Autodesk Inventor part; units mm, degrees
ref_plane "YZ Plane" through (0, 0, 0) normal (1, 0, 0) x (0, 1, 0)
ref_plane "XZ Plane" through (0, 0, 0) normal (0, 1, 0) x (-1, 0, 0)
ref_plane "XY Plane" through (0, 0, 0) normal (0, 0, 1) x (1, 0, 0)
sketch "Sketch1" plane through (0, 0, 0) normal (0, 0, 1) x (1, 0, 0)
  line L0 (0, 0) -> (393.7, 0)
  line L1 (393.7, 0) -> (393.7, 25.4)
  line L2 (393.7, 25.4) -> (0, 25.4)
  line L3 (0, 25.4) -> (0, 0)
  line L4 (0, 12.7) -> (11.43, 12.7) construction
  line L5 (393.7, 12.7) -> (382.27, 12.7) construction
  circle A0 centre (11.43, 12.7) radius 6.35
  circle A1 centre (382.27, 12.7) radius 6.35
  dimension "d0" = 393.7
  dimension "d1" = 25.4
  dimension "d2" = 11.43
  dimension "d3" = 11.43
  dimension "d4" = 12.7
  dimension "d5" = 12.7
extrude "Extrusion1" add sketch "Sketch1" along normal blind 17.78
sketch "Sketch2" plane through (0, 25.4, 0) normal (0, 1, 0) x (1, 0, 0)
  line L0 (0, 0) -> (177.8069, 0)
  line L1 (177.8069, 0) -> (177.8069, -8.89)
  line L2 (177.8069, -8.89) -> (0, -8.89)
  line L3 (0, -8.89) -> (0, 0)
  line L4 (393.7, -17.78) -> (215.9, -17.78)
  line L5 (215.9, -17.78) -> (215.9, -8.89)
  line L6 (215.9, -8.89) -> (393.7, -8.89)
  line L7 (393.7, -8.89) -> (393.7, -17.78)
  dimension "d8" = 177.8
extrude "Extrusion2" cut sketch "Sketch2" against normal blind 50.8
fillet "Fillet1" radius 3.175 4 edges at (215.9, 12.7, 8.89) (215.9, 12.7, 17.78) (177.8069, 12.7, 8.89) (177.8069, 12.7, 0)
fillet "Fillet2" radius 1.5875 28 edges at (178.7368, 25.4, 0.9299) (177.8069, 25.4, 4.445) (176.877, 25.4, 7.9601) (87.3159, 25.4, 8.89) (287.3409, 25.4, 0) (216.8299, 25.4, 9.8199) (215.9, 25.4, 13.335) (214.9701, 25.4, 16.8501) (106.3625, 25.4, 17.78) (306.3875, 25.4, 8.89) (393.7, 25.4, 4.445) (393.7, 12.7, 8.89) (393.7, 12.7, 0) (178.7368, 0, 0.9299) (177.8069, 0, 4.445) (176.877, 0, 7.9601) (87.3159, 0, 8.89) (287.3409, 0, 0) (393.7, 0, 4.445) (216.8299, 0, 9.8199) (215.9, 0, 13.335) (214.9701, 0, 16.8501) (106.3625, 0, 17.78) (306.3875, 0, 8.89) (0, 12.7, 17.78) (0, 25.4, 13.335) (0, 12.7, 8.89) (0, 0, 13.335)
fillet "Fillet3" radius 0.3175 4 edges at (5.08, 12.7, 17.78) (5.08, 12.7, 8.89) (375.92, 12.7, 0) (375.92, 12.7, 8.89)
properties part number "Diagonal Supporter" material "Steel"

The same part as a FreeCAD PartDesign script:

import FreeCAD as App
import Part
import Sketcher

V = App.Vector
Q = App.Units.Quantity


def edges_at(feature, points):
    """Names of the edges that pass closest to the given points."""
    edges = feature.Shape.Edges
    near = lambda p: min(range(len(edges)), key=lambda i: edges[i].distToShape(Part.Vertex(*p))[0])
    return sorted({f"Edge{near(p) + 1}" for p in points})


def add_polygon(sketch, points):
    """Adds a closed chain of lines whose ends are joined by coincident constraints."""
    first, n = sketch.GeometryCount, len(points)
    for a, b in zip(points, points[1:] + points[:1]):
        sketch.addGeometry(Part.LineSegment(App.Vector(*a, 0), App.Vector(*b, 0)), False)
    for i in range(n):
        sketch.addConstraint(Sketcher.Constraint("Coincident", first + i, 2, first + (i + 1) % n, 1))

doc = App.newDocument("Part")
body = doc.addObject("PartDesign::Body", "Body")

sketch1 = body.newObject("Sketcher::SketchObject", "Sketch")
sketch1.AttachmentSupport = (doc.getObject("XY_Plane"), [""])
sketch1.MapMode = "FlatFace"
add_polygon(sketch1, [(0, 25), (0, 0), (394, 0), (394, 25)])
sketch1.addGeometry(Part.Circle(V(11, 13, 0), V(0, 0, 1), 6), False)
sketch1.addGeometry(Part.Circle(V(382, 13, 0), V(0, 0, 1), 6), False)
sketch1.addConstraint(Sketcher.Constraint("Vertical", 0))
sketch1.addConstraint(Sketcher.Constraint("Horizontal", 1))
sketch1.addConstraint(Sketcher.Constraint("Vertical", 2))
sketch1.addConstraint(Sketcher.Constraint("Horizontal", 3))
sketch1.addConstraint(Sketcher.Constraint("Coincident", 0, 2, -1, 1))
sketch1.addConstraint(Sketcher.Constraint("Equal", 4, 5))
sketch1.addConstraint(Sketcher.Constraint("Horizontal", 4, 3, 5, 3))
sketch1.addConstraint(Sketcher.Constraint("Diameter", 4, Q("0.5 in")))
sketch1.addConstraint(Sketcher.Constraint("DistanceY", 0, 2, 0, 1, Q("1 in")))
sketch1.addConstraint(Sketcher.Constraint("DistanceX", 1, 1, 1, 2, Q("15.5 in")))
sketch1.addConstraint(Sketcher.Constraint("DistanceY", -1, 1, 4, 3, Q("0.5 in")))
sketch1.addConstraint(Sketcher.Constraint("DistanceX", -1, 1, 4, 3, Q("0.45 in")))
sketch1.addConstraint(Sketcher.Constraint("DistanceX", 5, 3, 1, 2, Q("0.45 in")))
pad1 = body.newObject("PartDesign::Pad", "Pad")
pad1.Profile = sketch1
pad1.Length = Q("0.7 in")

sketch2 = body.newObject("Sketcher::SketchObject", "Sketch001")
sketch2.AttachmentSupport = (doc.getObject("XZ_Plane"), [""])
sketch2.MapMode = "FlatFace"
sketch2.AttachmentOffset = App.Placement(V(0, 0, -1 * 25.4), App.Rotation())
add_polygon(sketch2, [(178, 0), (0, 0), (0, 9), (178, 9)])
add_polygon(sketch2, [(216, 18), (394, 18), (394, 9), (216, 9)])
sketch2.addConstraint(Sketcher.Constraint("Horizontal", 0))
sketch2.addConstraint(Sketcher.Constraint("Vertical", 1))
sketch2.addConstraint(Sketcher.Constraint("Horizontal", 2))
sketch2.addConstraint(Sketcher.Constraint("Vertical", 3))
sketch2.addConstraint(Sketcher.Constraint("Horizontal", 4))
sketch2.addConstraint(Sketcher.Constraint("Vertical", 5))
sketch2.addConstraint(Sketcher.Constraint("Horizontal", 6))
sketch2.addConstraint(Sketcher.Constraint("Vertical", 7))
sketch2.addConstraint(Sketcher.Constraint("Coincident", 0, 2, -1, 1))
sketch2.addConstraint(Sketcher.Constraint("Horizontal", 2, 2, 5, 2))
sketch2.addConstraint(Sketcher.Constraint("Equal", 3, 5))
sketch2.addConstraint(Sketcher.Constraint("DistanceX", 4, 1, 4, 2, Q("7 in")))
sketch2.addConstraint(Sketcher.Constraint("DistanceY", 1, 1, 1, 2, Q("0.35 in")))
sketch2.addConstraint(Sketcher.Constraint("DistanceX", -1, 1, 4, 2, Q("15.5 in")))
sketch2.addConstraint(Sketcher.Constraint("DistanceX", 0, 2, 0, 1, 177.807))
pocket1 = body.newObject("PartDesign::Pocket", "Pocket")
pocket1.Profile = sketch2
pocket1.Length = Q("2 in")
pocket1.Reversed = True
doc.recompute()

fillet = body.newObject("PartDesign::Fillet", "Fillet")
fillet.Base = (pocket1, edges_at(pocket1, [
    (215.9, 12.7, 8.89),
    (215.9, 12.7, 17.78),
    (177.807, 12.7, 8.89),
    (177.807, 12.7, 0),
]))
fillet.Radius = Q("0.125 in")
doc.recompute()

fillet2 = body.newObject("PartDesign::Fillet", "Fillet001")
fillet2.Base = (fillet, edges_at(fillet, [
    (178.737, 25.4, 0.93),
    (177.807, 25.4, 4.445),
    (176.877, 25.4, 7.96),
    (87.316, 25.4, 8.89),
    (287.341, 25.4, 0),
    (216.83, 25.4, 9.82),
    (215.9, 25.4, 13.335),
    (214.97, 25.4, 16.85),
    (106.362, 25.4, 17.78),
    (306.387, 25.4, 8.89),
    (393.7, 25.4, 4.445),
    (393.7, 12.7, 8.89),
    (393.7, 12.7, 0),
    (178.737, 0, 0.93),
    (177.807, 0, 4.445),
    (176.877, 0, 7.96),
    (87.316, 0, 8.89),
    (287.341, 0, 0),
    (393.7, 0, 4.445),
    (216.83, 0, 9.82),
    (215.9, 0, 13.335),
    (214.97, 0, 16.85),
    (106.362, 0, 17.78),
    (306.387, 0, 8.89),
    (0, 12.7, 17.78),
    (0, 25.4, 13.335),
    (0, 12.7, 8.89),
    (0, 0, 13.335),
]))
fillet2.Radius = Q("0.0625 in")
doc.recompute()

fillet3 = body.newObject("PartDesign::Fillet", "Fillet002")
fillet3.Base = (fillet2, edges_at(fillet2, [
    (5.08, 12.7, 17.78),
    (5.08, 12.7, 8.89),
    (375.92, 12.7, 0),
    (375.92, 12.7, 8.89),
]))
fillet3.Radius = Q("0.0125 in")

doc.recompute()
